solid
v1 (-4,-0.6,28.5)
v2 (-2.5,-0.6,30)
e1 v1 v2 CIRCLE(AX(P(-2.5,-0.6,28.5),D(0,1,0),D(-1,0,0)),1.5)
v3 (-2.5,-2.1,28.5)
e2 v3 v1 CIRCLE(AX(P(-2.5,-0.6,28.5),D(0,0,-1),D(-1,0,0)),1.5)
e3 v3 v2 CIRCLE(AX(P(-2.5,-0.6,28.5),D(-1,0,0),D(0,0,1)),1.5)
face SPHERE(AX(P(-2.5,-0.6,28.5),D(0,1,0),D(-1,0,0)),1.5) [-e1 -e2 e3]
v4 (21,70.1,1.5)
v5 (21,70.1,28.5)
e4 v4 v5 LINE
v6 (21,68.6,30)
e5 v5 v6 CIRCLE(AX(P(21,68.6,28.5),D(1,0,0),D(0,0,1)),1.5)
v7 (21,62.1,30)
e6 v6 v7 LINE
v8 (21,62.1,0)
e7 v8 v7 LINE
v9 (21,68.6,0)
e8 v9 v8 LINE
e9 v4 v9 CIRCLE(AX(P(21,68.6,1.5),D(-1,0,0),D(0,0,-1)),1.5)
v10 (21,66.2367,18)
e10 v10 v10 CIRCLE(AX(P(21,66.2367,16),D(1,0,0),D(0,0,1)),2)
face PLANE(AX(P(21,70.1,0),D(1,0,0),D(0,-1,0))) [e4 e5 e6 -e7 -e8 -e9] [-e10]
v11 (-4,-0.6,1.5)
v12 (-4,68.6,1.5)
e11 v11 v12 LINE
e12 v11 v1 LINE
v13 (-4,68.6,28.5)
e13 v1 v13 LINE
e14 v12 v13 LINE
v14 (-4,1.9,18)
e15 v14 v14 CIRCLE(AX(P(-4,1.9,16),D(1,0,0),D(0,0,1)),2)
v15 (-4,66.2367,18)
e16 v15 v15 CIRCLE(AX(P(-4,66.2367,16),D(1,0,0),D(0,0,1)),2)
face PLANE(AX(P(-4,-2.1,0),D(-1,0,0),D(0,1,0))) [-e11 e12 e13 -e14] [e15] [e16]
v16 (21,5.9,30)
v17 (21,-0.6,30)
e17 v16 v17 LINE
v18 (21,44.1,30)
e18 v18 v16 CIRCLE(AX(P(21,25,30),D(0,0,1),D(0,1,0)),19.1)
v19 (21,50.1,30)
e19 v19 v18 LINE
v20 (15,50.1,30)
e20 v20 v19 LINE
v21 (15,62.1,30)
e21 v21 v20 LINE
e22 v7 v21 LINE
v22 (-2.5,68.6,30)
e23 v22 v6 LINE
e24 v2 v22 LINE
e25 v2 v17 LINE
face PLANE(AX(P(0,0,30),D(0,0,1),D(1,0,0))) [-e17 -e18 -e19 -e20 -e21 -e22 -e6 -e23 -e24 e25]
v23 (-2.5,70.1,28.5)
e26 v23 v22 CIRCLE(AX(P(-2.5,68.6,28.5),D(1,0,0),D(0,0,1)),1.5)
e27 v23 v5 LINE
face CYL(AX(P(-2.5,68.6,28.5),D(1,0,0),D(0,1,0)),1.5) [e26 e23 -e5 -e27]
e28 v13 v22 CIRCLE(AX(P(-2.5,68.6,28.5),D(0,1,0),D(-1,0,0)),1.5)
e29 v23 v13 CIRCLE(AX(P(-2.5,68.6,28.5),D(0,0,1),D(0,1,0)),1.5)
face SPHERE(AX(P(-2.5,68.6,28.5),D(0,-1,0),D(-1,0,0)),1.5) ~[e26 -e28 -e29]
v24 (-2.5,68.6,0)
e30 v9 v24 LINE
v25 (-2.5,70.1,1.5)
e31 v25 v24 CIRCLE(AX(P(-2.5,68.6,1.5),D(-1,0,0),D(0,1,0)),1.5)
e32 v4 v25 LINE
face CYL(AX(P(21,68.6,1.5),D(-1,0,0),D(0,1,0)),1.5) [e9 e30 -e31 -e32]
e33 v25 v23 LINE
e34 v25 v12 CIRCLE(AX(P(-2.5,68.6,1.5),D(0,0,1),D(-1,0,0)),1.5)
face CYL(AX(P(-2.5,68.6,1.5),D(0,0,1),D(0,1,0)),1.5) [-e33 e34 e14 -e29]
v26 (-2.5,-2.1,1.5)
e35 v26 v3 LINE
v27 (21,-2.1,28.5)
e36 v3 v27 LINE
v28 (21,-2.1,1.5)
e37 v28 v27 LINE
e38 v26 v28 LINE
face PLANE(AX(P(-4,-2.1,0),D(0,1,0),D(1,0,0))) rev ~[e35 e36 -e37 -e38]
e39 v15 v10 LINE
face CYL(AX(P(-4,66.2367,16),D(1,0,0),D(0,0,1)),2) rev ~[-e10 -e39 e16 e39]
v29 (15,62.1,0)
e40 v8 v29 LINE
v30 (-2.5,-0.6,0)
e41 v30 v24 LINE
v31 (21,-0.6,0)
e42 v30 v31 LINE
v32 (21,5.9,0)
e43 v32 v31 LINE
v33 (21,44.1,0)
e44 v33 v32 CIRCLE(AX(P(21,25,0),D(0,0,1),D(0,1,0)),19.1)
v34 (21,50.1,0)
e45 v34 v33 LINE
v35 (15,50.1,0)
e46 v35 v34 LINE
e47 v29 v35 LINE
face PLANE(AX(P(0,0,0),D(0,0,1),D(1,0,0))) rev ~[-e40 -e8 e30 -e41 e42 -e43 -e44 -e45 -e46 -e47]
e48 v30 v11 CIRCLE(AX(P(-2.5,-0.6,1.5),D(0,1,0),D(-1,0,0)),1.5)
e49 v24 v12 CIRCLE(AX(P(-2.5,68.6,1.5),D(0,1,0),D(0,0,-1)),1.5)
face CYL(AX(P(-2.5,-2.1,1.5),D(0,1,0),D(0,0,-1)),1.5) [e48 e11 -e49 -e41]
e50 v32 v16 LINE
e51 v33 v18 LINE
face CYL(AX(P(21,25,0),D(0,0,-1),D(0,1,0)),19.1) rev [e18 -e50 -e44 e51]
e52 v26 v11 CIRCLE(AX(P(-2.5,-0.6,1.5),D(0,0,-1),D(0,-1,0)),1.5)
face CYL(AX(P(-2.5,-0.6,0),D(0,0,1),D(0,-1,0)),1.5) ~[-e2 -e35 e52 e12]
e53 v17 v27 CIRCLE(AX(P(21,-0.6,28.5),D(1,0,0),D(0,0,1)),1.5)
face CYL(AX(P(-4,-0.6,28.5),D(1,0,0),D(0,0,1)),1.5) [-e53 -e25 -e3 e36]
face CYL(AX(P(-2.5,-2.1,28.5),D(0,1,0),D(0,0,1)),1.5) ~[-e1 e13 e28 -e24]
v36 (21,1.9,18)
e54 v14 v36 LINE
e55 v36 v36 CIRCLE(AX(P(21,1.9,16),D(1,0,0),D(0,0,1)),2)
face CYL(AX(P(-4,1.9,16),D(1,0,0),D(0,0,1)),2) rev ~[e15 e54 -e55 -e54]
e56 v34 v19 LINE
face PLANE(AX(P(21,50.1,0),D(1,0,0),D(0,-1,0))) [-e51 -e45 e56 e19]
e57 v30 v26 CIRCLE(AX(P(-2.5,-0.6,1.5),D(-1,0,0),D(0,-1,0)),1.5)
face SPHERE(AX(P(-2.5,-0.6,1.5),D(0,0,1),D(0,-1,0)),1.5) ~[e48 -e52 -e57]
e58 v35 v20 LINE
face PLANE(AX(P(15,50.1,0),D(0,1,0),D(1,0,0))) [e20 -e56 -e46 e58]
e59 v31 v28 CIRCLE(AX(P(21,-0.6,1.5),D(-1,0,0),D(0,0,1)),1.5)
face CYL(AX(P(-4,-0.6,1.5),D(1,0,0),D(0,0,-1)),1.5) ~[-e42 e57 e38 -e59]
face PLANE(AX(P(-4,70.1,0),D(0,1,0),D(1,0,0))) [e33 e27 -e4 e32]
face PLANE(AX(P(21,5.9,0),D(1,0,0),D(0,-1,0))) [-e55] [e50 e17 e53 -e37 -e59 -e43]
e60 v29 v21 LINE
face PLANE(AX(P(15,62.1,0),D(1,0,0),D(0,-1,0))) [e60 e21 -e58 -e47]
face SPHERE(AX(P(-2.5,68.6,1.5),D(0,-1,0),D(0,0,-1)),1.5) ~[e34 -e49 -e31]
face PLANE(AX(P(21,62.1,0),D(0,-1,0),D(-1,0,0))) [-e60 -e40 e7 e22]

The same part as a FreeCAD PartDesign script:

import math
import FreeCAD as App
import Part
import Sketcher

V = App.Vector


def edges_at(feature, points):
    """Names of the edges that pass closest to the given points."""
    edges = feature.Shape.Edges
    near = lambda p: min(range(len(edges)), key=lambda i: edges[i].distToShape(Part.Vertex(*p))[0])
    return sorted({f"Edge{near(p) + 1}" for p in points})

doc = App.newDocument("Part")
body = doc.addObject("PartDesign::Body", "Body")

sketch1 = body.newObject("Sketcher::SketchObject", "Sketch")
sketch1.AttachmentSupport = (doc.getObject("XY_Plane"), [""])
sketch1.MapMode = "FlatFace"
sketch1.addGeometry([
    Part.LineSegment(V(21, 50, 0), V(15, 50, 0)),
    Part.LineSegment(V(15, 50, 0), V(15, 62, 0)),
    Part.LineSegment(V(15, 62, 0), V(21, 62, 0)),
    Part.LineSegment(V(21, 62, 0), V(21, 70, 0)),
    Part.LineSegment(V(21, 70, 0), V(-4, 70, 0)),
    Part.LineSegment(V(-4, 70, 0), V(-4, -2, 0)),
    Part.LineSegment(V(-4, -2, 0), V(21, -2, 0)),
    Part.LineSegment(V(21, -2, 0), V(21, 6, 0)),
    Part.ArcOfCircle(Part.Circle(V(21, 25, 0), V(0, 0, 1), 19), math.radians(90), math.radians(270)),
    Part.LineSegment(V(21, 44, 0), V(21, 50, 0)),
], False)
sketch1.addConstraint([
    Sketcher.Constraint("Coincident", 0, 2, 1, 1),
    Sketcher.Constraint("Coincident", 1, 2, 2, 1),
    Sketcher.Constraint("Coincident", 2, 2, 3, 1),
    Sketcher.Constraint("Coincident", 3, 2, 4, 1),
    Sketcher.Constraint("Coincident", 4, 2, 5, 1),
    Sketcher.Constraint("Coincident", 5, 2, 6, 1),
    Sketcher.Constraint("Coincident", 6, 2, 7, 1),
    Sketcher.Constraint("Coincident", 7, 2, 8, 2),
    Sketcher.Constraint("Coincident", 8, 1, 9, 1),
    Sketcher.Constraint("Coincident", 9, 2, 0, 1),
    Sketcher.Constraint("Horizontal", 0),
    Sketcher.Constraint("Vertical", 1),
    Sketcher.Constraint("Horizontal", 2),
    Sketcher.Constraint("Vertical", 3),
    Sketcher.Constraint("Horizontal", 4),
    Sketcher.Constraint("Vertical", 5),
    Sketcher.Constraint("Horizontal", 6),
    Sketcher.Constraint("Vertical", 7),
    Sketcher.Constraint("Vertical", 9),
    Sketcher.Constraint("Vertical", 8, 3, 2, 2),
    Sketcher.Constraint("Vertical", 3, 2, 6, 2),
    Sketcher.Constraint("Vertical", 7, 2, 8, 1),
    Sketcher.Constraint("Equal", 3, 7),
    Sketcher.Constraint("Equal", 2, 9),
    Sketcher.Constraint("Radius", 8, 19.1),
    Sketcher.Constraint("DistanceX", 0, 2, 0, 1, 6.0),
    Sketcher.Constraint("DistanceX", 4, 2, 4, 1, 25.0),
    Sketcher.Constraint("DistanceY", 1, 1, 1, 2, 12.0),
    Sketcher.Constraint("DistanceY", 3, 1, 3, 2, 8.0),
    Sketcher.Constraint("DistanceY", -1, 1, 8, 3, 25.0),
    Sketcher.Constraint("DistanceX", -1, 1, 8, 3, 21.0),
])
pad1 = body.newObject("PartDesign::Pad", "Pad")
pad1.Profile = sketch1
pad1.Length = 30

sketch2 = body.newObject("Sketcher::SketchObject", "Sketch001")
sketch2.AttachmentSupport = (doc.getObject("YZ_Plane"), [""])
sketch2.MapMode = "FlatFace"
sketch2.AttachmentOffset = App.Placement(V(0, 0, -4), App.Rotation())
sketch2.addGeometry(Part.Circle(V(66.2, 16, 0), V(0, 0, 1), 2), False)
sketch2.addConstraint([
    Sketcher.Constraint("Diameter", 0, 4.0),
    Sketcher.Constraint("DistanceY", -1, 1, 0, 3, 16.0),
    Sketcher.Constraint("DistanceX", -1, 1, 0, 3, 66.2367),
])
doc.recompute()
hole = body.newObject("PartDesign::Hole", "Hole")
hole.Profile = sketch2
hole.ThreadType = "None"
hole.Diameter = 4
hole.DepthType = "Dimension"
hole.Depth = 25
hole.DrillPoint = "Flat"
hole.Reversed = True

sketch3 = body.newObject("Sketcher::SketchObject", "Sketch002")
sketch3.AttachmentSupport = (doc.getObject("YZ_Plane"), [""])
sketch3.MapMode = "FlatFace"
sketch3.AttachmentOffset = App.Placement(V(0, 0, -4), App.Rotation())
sketch3.addGeometry(Part.Circle(V(1.9, 16, 0), V(0, 0, 1), 2), False)
sketch3.addConstraint([
    Sketcher.Constraint("Diameter", 0, 4.0),
    Sketcher.Constraint("DistanceY", -1, 1, 0, 3, 16.0),
    Sketcher.Constraint("DistanceX", -1, 1, 0, 3, 1.9),
])
doc.recompute()
hole2 = body.newObject("PartDesign::Hole", "Hole001")
hole2.Profile = sketch3
hole2.ThreadType = "None"
hole2.Diameter = 4
hole2.DepthType = "Dimension"
hole2.Depth = 25
hole2.DrillPoint = "Flat"
hole2.Reversed = True
doc.recompute()

fillet = body.newObject("PartDesign::Fillet", "Fillet")
fillet.Base = (hole2, edges_at(hole2, [
    (-4, 34, 30),
    (-4, -2.1, 15),
    (8.5, -2.1, 30),
    (8.5, -2.1, 0),
    (-4, 34, 0),
]))
fillet.Radius = 1.5
doc.recompute()

fillet2 = body.newObject("PartDesign::Fillet", "Fillet001")
fillet2.Base = (fillet, edges_at(fillet, [
    (9.25, 70.1, 30),
    (-3.561, 70.1, 29.561),
    (-4, 70.1, 15),
    (-3.561, 70.1, 0.439),
    (9.25, 70.1, 0),
]))
fillet2.Radius = 1.5

doc.recompute()
